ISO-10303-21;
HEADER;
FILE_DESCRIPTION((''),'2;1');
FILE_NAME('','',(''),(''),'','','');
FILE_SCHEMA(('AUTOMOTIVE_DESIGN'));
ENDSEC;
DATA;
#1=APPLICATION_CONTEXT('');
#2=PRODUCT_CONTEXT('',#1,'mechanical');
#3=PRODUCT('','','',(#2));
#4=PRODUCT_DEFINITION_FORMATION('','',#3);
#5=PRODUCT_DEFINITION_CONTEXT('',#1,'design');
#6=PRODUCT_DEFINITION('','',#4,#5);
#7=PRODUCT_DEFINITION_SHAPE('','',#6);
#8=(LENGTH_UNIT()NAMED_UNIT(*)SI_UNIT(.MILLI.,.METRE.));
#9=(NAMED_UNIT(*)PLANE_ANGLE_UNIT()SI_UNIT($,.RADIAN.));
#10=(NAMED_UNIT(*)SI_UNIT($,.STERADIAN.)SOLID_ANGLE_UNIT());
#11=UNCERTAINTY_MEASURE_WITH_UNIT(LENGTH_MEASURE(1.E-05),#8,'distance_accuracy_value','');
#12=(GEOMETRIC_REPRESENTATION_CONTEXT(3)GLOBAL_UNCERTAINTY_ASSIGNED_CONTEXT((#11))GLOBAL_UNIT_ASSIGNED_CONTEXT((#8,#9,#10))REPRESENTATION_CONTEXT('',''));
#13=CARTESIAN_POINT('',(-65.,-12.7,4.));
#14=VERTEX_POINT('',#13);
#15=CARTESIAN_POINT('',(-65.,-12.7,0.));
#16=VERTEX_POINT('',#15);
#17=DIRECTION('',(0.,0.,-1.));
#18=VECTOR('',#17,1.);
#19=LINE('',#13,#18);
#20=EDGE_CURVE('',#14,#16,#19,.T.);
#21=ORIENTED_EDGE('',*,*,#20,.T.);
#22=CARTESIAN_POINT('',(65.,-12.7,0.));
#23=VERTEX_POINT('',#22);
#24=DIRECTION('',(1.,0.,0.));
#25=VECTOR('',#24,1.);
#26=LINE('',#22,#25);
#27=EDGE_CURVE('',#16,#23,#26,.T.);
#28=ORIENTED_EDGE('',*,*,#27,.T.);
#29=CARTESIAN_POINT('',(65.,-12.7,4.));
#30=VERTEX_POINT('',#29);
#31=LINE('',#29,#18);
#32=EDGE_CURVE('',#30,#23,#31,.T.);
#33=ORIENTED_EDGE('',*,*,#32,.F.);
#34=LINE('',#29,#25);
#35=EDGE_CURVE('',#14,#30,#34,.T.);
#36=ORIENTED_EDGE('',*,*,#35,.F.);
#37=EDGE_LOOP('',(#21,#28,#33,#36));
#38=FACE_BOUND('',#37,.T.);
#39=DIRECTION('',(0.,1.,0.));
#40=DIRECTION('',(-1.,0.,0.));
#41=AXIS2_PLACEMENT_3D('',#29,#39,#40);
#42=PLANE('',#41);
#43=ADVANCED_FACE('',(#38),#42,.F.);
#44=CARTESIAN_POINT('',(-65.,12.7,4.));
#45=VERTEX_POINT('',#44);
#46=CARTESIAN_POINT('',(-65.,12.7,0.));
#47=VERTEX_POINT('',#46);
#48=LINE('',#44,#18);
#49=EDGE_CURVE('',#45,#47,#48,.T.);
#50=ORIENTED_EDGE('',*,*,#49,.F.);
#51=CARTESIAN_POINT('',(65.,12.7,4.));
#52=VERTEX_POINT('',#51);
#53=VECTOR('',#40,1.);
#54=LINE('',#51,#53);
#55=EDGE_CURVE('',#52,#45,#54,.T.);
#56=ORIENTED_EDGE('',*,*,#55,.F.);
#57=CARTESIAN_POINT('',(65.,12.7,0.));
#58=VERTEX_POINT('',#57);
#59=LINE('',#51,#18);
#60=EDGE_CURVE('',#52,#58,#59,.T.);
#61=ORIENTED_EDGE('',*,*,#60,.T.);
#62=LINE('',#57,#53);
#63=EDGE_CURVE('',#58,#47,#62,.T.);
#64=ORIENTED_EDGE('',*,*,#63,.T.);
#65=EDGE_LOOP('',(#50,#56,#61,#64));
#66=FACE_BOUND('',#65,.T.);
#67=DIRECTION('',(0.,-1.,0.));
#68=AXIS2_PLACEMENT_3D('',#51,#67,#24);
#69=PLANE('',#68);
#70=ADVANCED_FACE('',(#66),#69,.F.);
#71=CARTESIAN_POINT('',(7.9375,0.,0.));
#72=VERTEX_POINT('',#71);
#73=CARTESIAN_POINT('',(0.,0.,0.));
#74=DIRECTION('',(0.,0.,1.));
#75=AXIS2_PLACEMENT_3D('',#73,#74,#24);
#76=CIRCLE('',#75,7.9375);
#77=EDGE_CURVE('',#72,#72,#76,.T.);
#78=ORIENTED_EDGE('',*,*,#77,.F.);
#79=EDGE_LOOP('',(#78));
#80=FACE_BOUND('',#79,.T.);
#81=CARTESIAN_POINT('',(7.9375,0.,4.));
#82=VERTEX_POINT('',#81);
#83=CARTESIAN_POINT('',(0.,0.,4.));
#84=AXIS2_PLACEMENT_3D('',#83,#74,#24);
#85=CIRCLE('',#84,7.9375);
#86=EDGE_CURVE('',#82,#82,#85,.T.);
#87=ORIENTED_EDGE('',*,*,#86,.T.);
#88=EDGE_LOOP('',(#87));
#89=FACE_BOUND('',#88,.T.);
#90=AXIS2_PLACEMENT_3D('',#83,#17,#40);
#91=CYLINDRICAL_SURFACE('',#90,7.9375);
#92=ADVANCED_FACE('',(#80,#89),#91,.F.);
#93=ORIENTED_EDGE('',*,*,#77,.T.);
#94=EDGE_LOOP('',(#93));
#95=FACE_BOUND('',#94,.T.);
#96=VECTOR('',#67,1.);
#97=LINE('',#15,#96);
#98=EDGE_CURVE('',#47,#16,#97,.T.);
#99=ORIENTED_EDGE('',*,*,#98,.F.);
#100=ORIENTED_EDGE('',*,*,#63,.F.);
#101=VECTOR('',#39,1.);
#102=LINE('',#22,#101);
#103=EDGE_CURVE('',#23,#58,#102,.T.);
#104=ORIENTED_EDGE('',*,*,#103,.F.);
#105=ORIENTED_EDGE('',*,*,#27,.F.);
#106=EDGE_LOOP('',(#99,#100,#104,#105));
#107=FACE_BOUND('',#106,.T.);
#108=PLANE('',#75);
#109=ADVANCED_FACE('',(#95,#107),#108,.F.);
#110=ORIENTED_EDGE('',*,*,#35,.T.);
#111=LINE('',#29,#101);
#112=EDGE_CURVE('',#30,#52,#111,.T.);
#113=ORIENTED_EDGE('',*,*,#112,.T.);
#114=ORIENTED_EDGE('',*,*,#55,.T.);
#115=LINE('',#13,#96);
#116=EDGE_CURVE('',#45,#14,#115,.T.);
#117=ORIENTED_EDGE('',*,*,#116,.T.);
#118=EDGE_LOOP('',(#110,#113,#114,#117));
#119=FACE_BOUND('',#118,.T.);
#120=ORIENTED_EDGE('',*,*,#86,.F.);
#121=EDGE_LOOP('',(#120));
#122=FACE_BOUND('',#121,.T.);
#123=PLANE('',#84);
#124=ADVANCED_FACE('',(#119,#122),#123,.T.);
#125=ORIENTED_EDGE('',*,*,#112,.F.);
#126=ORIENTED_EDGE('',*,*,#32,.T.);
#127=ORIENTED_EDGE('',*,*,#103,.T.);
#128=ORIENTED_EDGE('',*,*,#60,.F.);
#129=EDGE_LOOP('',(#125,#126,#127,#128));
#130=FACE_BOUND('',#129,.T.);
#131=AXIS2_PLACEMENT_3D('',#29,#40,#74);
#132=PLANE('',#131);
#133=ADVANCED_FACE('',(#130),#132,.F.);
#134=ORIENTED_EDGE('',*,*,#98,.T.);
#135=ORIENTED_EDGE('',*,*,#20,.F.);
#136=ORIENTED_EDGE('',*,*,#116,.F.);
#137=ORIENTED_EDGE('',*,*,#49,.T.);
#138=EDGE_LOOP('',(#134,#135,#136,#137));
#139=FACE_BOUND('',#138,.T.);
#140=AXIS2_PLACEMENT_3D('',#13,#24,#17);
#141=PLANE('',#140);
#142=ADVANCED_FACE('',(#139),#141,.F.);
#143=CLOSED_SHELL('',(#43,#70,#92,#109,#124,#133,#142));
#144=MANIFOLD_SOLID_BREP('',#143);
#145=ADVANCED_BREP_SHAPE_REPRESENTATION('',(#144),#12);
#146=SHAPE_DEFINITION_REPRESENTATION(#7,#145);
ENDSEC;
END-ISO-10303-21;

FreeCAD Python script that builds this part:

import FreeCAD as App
import Part
import Sketcher


def add_polygon(sketch, points):
    """Adds a closed chain of lines whose ends are joined by coincident constraints."""
    first, n = sketch.GeometryCount, len(points)
    for a, b in zip(points, points[1:] + points[:1]):
        sketch.addGeometry(Part.LineSegment(App.Vector(*a, 0), App.Vector(*b, 0)), False)
    for i in range(n):
        sketch.addConstraint(Sketcher.Constraint("Coincident", first + i, 2, first + (i + 1) % n, 1))

doc = App.newDocument("Part")
params = doc.addObject("Spreadsheet::Sheet", "Params")
for row, (alias, value) in enumerate([
    ("sketch1_width", "130 mm"),
    ("sketch1_height", "25.4 mm"),
    ("pad1_length", "4 mm"),
], start=1):
    params.set(f"A{row}", alias)
    params.set(f"B{row}", "=" + value)
    params.setAlias(f"B{row}", alias)

body = doc.addObject("PartDesign::Body", "Body")

# Sketch on XY plane
sketch1 = body.newObject("Sketcher::SketchObject", "Sketch")
sketch1.AttachmentSupport = (doc.getObject("XY_Plane"), [""])
sketch1.MapMode = "FlatFace"
add_polygon(sketch1, [(-65, 13), (-65, -13), (65, -13), (65, 13)])  # lines 0-3
sketch1.addGeometry(Part.Circle(App.Vector(0, 0, 0), App.Vector(0, 0, 1), 8), False)  # 4
sketch1.addConstraint([
    Sketcher.Constraint("Vertical", 0),
    Sketcher.Constraint("Horizontal", 1),
    Sketcher.Constraint("Vertical", 2),
    Sketcher.Constraint("Horizontal", 3),
    Sketcher.Constraint("Coincident", 4, 3, -1, 1),
    Sketcher.Constraint("Symmetric", 0, 2, 2, 2, -1, 1),
    Sketcher.Constraint("DistanceX", 1, 1, 1, 2, 130.0),
    Sketcher.Constraint("Diameter", 4, 15.875),
    Sketcher.Constraint("DistanceY", 0, 2, 0, 1, 25.4),
])
sketch1.setExpression("Constraints[10]", "Params.sketch1_width")
sketch1.setExpression("Constraints[12]", "Params.sketch1_height")
pad1 = body.newObject("PartDesign::Pad", "Pad")
pad1.Profile = sketch1
pad1.setExpression("Length", "Params.pad1_length")

doc.recompute()
